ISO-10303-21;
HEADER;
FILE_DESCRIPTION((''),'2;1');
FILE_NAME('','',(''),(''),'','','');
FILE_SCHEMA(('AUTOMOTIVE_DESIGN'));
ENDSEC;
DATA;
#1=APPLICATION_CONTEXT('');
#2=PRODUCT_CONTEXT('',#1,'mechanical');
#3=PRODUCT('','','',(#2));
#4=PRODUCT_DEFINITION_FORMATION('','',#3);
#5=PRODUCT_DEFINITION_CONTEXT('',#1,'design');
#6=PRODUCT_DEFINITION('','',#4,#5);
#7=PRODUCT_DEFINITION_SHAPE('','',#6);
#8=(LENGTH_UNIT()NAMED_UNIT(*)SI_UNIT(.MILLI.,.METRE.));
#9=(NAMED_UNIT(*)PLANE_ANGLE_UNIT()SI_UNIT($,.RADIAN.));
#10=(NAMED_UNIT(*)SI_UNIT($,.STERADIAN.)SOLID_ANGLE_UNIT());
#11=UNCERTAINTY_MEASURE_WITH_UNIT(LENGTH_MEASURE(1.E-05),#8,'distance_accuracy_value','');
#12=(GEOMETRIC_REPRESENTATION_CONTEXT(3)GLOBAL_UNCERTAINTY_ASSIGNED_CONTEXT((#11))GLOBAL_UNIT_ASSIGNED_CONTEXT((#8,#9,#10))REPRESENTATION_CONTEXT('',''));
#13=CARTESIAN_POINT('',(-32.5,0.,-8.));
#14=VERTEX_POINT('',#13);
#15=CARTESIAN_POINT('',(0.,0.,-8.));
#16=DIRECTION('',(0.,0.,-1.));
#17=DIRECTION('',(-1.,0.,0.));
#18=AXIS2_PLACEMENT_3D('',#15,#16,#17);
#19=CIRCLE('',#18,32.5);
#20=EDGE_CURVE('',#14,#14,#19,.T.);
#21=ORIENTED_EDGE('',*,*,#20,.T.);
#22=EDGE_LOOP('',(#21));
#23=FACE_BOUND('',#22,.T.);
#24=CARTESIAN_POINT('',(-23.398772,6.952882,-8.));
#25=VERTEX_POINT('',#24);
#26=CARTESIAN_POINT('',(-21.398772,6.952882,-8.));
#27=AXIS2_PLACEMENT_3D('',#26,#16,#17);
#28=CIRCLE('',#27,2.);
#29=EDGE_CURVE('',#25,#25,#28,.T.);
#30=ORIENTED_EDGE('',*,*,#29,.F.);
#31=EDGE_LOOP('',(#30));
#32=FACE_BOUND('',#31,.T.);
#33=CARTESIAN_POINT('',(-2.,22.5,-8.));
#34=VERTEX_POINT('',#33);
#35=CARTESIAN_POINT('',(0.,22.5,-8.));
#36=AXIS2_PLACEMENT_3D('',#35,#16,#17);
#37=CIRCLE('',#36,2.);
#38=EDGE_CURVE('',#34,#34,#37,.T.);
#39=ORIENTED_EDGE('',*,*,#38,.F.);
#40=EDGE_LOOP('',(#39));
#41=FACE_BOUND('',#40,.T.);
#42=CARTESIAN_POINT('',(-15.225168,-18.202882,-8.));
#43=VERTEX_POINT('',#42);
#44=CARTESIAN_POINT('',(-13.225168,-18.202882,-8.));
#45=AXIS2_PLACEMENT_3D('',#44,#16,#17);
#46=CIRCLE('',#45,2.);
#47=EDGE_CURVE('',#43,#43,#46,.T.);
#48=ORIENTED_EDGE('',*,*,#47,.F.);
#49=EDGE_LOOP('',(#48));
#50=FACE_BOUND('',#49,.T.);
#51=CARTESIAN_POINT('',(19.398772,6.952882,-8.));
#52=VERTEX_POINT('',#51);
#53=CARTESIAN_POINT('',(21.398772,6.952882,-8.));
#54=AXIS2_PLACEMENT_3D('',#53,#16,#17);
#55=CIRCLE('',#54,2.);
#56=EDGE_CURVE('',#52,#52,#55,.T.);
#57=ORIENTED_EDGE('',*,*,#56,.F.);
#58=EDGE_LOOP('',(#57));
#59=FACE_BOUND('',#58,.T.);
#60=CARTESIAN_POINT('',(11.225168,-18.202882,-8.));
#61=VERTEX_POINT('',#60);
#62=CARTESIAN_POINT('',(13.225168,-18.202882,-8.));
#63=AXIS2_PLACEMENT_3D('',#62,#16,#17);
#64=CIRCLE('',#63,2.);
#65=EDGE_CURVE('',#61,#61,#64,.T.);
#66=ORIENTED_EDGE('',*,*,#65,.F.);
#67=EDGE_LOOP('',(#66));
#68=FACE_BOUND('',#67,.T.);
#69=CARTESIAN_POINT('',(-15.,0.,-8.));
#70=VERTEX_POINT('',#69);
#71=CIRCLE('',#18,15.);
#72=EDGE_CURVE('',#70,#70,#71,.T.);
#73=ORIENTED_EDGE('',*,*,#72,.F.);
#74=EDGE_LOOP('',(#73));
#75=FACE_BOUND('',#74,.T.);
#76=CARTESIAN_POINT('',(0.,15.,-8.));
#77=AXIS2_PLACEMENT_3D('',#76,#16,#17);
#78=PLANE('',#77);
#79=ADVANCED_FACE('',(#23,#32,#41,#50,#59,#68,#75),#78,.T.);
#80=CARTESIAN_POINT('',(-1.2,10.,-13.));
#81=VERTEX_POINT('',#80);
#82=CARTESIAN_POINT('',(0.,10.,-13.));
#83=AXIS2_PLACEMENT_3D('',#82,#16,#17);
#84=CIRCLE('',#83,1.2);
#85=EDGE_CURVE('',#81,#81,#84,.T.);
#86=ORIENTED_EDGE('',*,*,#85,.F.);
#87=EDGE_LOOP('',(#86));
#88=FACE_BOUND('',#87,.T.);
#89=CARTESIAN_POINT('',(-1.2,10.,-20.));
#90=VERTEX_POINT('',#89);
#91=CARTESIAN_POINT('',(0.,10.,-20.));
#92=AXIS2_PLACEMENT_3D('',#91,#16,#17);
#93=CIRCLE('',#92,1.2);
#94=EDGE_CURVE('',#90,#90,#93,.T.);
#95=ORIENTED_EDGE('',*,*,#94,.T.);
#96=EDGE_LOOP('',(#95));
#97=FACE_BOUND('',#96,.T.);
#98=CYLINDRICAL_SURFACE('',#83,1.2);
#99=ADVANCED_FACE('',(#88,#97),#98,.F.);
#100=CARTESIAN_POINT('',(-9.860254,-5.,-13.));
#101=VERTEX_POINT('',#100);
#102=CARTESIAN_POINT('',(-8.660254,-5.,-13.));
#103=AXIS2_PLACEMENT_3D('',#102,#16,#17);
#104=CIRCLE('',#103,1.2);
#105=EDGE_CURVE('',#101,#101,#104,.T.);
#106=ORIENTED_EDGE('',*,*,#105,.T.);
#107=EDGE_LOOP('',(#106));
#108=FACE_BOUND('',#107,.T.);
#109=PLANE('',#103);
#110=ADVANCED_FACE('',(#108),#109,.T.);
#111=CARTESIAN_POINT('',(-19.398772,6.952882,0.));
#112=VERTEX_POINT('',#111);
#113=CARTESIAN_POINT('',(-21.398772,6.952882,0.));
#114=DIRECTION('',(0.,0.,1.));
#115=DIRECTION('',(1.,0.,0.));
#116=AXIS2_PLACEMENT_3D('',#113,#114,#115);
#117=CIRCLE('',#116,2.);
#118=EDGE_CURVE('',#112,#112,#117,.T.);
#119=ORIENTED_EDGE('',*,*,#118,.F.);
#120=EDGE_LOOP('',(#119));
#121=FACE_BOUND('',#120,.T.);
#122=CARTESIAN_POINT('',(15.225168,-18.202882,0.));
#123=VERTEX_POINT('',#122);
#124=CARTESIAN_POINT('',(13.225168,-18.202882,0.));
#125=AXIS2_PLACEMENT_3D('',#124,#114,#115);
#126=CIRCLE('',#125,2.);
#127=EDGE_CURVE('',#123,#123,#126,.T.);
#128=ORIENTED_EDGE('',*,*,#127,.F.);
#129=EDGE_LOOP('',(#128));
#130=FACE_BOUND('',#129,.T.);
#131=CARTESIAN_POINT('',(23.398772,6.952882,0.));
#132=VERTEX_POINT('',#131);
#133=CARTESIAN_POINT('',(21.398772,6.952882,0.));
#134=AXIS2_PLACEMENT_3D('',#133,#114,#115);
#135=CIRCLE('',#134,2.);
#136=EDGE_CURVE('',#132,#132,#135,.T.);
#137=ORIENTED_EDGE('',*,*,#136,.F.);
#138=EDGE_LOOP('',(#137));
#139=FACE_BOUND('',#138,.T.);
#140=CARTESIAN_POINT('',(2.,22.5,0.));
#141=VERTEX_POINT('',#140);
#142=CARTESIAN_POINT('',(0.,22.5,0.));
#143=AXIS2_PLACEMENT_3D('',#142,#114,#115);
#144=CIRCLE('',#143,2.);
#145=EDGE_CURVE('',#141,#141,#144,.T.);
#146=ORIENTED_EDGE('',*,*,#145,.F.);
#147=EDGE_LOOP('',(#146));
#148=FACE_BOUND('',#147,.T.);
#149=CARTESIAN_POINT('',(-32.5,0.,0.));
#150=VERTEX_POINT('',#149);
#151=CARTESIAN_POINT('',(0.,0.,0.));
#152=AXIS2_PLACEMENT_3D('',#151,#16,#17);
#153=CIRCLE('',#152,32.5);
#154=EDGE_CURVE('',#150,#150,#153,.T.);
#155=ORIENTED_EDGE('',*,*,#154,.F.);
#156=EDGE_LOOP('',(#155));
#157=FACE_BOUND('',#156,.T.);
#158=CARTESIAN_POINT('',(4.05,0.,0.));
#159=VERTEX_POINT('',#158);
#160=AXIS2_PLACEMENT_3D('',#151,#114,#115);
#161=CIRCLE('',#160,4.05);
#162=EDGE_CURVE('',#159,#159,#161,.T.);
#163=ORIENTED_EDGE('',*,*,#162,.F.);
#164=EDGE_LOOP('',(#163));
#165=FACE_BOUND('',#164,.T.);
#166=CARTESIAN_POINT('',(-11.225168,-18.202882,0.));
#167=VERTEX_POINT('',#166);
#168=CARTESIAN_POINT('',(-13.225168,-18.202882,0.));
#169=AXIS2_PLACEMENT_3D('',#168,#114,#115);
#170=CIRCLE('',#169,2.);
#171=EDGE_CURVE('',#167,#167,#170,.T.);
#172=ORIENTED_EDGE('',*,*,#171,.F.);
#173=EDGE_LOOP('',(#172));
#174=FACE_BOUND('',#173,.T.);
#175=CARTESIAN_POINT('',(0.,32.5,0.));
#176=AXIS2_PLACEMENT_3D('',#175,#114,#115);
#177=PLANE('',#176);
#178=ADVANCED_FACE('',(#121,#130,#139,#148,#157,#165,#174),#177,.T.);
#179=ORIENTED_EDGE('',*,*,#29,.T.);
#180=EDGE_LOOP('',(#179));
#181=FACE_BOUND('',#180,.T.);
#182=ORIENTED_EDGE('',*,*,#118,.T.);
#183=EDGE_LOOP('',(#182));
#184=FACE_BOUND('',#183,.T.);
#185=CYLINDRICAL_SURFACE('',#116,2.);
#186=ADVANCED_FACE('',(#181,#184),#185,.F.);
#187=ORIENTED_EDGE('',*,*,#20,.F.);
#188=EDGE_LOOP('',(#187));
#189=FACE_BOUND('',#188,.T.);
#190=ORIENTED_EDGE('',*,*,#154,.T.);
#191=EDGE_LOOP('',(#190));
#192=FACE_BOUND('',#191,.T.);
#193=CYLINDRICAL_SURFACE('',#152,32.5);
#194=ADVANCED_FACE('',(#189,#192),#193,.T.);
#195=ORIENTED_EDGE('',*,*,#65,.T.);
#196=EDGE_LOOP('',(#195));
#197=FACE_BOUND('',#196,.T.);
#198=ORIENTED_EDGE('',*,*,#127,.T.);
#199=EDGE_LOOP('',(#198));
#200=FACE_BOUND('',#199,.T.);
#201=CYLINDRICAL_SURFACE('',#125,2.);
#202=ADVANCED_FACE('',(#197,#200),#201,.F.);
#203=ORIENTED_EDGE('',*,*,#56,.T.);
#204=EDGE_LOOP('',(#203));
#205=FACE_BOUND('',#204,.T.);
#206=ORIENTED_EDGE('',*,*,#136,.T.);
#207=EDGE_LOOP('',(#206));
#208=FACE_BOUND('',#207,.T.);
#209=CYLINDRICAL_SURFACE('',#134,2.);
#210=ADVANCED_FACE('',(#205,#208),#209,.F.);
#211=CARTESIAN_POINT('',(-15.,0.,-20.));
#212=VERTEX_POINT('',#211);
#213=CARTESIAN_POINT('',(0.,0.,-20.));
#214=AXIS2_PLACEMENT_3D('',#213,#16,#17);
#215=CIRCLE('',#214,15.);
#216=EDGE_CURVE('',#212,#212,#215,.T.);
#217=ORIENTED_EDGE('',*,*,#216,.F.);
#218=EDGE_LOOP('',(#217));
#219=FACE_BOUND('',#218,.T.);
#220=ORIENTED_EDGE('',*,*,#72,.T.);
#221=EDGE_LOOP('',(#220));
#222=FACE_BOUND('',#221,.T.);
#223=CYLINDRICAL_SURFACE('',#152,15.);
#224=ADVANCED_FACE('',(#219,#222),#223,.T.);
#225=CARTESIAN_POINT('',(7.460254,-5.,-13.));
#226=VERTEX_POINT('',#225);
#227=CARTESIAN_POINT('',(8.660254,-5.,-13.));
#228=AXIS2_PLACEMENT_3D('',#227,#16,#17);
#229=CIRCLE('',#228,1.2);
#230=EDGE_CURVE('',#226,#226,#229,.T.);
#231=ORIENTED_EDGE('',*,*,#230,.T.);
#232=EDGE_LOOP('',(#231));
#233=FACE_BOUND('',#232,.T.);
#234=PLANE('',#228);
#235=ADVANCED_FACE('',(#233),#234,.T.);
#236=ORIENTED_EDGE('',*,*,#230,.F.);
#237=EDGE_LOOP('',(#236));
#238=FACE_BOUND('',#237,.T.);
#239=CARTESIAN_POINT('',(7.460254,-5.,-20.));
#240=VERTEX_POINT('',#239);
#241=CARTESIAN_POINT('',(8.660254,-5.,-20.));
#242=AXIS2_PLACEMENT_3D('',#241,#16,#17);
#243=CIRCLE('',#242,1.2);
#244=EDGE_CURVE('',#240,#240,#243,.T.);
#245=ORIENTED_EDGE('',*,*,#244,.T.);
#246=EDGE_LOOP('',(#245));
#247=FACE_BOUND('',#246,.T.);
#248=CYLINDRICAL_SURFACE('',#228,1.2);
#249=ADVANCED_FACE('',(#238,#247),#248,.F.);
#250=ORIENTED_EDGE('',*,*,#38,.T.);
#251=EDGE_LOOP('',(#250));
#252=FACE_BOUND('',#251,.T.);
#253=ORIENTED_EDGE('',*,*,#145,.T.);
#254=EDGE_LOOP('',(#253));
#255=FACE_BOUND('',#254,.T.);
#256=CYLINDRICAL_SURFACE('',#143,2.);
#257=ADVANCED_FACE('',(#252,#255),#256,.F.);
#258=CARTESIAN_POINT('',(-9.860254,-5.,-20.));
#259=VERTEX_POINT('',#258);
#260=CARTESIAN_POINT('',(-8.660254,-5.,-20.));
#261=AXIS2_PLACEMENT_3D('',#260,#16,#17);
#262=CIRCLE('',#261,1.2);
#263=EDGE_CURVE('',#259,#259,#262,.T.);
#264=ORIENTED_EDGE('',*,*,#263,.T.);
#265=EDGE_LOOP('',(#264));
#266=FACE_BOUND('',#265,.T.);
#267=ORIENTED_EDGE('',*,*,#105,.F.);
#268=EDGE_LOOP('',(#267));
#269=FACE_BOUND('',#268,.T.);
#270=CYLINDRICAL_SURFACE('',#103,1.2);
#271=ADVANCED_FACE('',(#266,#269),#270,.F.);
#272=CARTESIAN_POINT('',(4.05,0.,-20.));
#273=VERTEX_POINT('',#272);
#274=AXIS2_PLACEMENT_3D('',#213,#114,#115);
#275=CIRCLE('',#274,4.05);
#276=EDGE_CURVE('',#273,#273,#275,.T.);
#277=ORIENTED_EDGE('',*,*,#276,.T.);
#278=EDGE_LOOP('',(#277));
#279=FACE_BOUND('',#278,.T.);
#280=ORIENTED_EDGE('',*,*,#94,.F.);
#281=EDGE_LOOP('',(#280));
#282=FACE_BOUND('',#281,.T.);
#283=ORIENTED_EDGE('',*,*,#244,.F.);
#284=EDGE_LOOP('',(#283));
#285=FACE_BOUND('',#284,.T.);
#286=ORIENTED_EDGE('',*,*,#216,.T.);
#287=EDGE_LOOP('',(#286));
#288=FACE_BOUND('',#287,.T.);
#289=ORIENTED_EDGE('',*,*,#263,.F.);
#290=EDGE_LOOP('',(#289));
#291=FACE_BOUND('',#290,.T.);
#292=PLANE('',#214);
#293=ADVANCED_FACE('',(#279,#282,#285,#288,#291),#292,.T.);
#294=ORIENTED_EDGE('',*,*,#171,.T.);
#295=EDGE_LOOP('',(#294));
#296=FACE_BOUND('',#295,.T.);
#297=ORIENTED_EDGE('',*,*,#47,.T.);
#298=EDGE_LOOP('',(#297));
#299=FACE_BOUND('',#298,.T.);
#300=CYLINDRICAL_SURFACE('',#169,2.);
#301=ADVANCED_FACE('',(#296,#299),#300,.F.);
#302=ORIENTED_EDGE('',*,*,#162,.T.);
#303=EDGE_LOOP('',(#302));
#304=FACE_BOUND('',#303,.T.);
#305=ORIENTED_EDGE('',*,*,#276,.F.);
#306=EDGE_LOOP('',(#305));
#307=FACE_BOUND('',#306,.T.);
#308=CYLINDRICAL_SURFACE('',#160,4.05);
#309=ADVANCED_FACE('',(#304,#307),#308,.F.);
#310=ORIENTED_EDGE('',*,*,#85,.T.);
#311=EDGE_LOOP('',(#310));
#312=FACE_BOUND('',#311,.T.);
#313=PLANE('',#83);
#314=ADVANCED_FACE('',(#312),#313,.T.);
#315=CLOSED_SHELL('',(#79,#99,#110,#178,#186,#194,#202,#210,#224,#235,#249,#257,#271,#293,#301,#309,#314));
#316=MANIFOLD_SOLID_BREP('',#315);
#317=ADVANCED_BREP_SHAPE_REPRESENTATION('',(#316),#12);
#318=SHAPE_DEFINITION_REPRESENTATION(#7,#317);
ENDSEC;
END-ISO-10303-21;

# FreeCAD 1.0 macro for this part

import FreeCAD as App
import Part
import Sketcher
Q = App.Units.Quantity

doc = App.newDocument("Part")
params = doc.addObject("Spreadsheet::Sheet", "Params")
for row, (alias, value) in enumerate([
    ("sketch1_width", "15 mm"),
    ("sketch1_height", "20 mm"),
    ("sketch1_height2", "12 mm"),
    ("sketch1_width2", "17.5 mm"),
    ("revolution_angle", "360 deg"),
    ("sketch2_diameter", "4 mm"),
    ("hole_diameter", "4 mm"),
    ("sketch3_diameter", "8.1 mm"),
    ("hole2_diameter", "8.1 mm"),
    ("sketch4_diameter", "2.4 mm"),
    ("pocket1_length", "7 mm"),
], start=1):
    params.set(f"A{row}", alias)
    params.set(f"B{row}", "=" + value)
    params.setAlias(f"B{row}", alias)

body = doc.addObject("PartDesign::Body", "Body")

# Sketch on YZ plane
sketch1 = body.newObject("Sketcher::SketchObject", "Sketch")
sketch1.AttachmentSupport = (doc.getObject("YZ_Plane"), [""])
sketch1.MapMode = "FlatFace"
sketch1.addGeometry([
    Part.LineSegment(App.Vector(0, 0, 0), App.Vector(0, -20, 0)),  # 0
    Part.LineSegment(App.Vector(0, -20, 0), App.Vector(15, -20, 0)),  # 1
    Part.LineSegment(App.Vector(15, -20, 0), App.Vector(15, -8, 0)),  # 2
    Part.LineSegment(App.Vector(15, -8, 0), App.Vector(32.5, -8, 0)),  # 3
    Part.LineSegment(App.Vector(32.5, -8, 0), App.Vector(32.5, 0, 0)),  # 4
    Part.LineSegment(App.Vector(32.5, 0, 0), App.Vector(0, 0, 0)),  # 5
], False)
sketch1.addConstraint([
    Sketcher.Constraint("Coincident", 0, 2, 1, 1),
    Sketcher.Constraint("Coincident", 1, 2, 2, 1),
    Sketcher.Constraint("Coincident", 2, 2, 3, 1),
    Sketcher.Constraint("Coincident", 3, 2, 4, 1),
    Sketcher.Constraint("Coincident", 4, 2, 5, 1),
    Sketcher.Constraint("Coincident", 5, 2, 0, 1),
    Sketcher.Constraint("Vertical", 0),
    Sketcher.Constraint("Horizontal", 1),
    Sketcher.Constraint("Vertical", 2),
    Sketcher.Constraint("Horizontal", 3),
    Sketcher.Constraint("Vertical", 4),
    Sketcher.Constraint("Horizontal", 5),
    Sketcher.Constraint("Coincident", 5, 2, -1, 1),
    Sketcher.Constraint("DistanceX", 1, 1, 1, 2, Q("15 mm")),
    Sketcher.Constraint("DistanceY", 0, 2, 0, 1, Q("20 mm")),
    Sketcher.Constraint("DistanceY", 2, 1, 2, 2, Q("12 mm")),
    Sketcher.Constraint("DistanceX", 3, 1, 3, 2, Q("17.5 mm")),
])
sketch1.setExpression("Constraints[13]", "Params.sketch1_width")
sketch1.setExpression("Constraints[14]", "Params.sketch1_height")
sketch1.setExpression("Constraints[15]", "Params.sketch1_height2")
sketch1.setExpression("Constraints[16]", "Params.sketch1_width2")
revolution = body.newObject("PartDesign::Revolution", "Revolution")
revolution.Profile = sketch1
revolution.ReferenceAxis = (sketch1, ["V_Axis"])
revolution.setExpression("Angle", "Params.revolution_angle")

# Sketch on XY plane
sketch2 = body.newObject("Sketcher::SketchObject", "Sketch001")
sketch2.AttachmentSupport = (doc.getObject("XY_Plane"), [""])
sketch2.MapMode = "FlatFace"
sketch2.addGeometry(Part.Circle(App.Vector(0, 22.5, 0), App.Vector(0, 0, 1), 2), False)
sketch2.addConstraint([
    Sketcher.Constraint("PointOnObject", 0, 3, -2),
    Sketcher.Constraint("Diameter", 0, Q("4 mm")),
    Sketcher.Constraint("DistanceY", -1, 1, 0, 3, Q("22.5 mm")),
])
sketch2.setExpression("Constraints[1]", "Params.sketch2_diameter")
doc.recompute()
hole = body.newObject("PartDesign::Hole", "Hole")
hole.Profile = sketch2
hole.ThreadType = "None"
hole.setExpression("Diameter", "Params.hole_diameter")
hole.DepthType = "ThroughAll"

# Sketch on XY plane
sketch3 = body.newObject("Sketcher::SketchObject", "Sketch002")
sketch3.AttachmentSupport = (doc.getObject("XY_Plane"), [""])
sketch3.MapMode = "FlatFace"
sketch3.addGeometry(Part.Circle(App.Vector(0, 0, 0), App.Vector(0, 0, 1), 4.05), False)
sketch3.addConstraint([
    Sketcher.Constraint("Coincident", 0, 3, -1, 1),
    Sketcher.Constraint("Diameter", 0, Q("8.1 mm")),
])
sketch3.setExpression("Constraints[1]", "Params.sketch3_diameter")
doc.recompute()
hole2 = body.newObject("PartDesign::Hole", "Hole001")
hole2.Profile = sketch3
hole2.ThreadType = "None"
hole2.setExpression("Diameter", "Params.hole2_diameter")
hole2.DepthType = "ThroughAll"

# Sketch on XY plane
sketch4 = body.newObject("Sketcher::SketchObject", "Sketch003")
sketch4.AttachmentSupport = (doc.getObject("XY_Plane"), [""])
sketch4.MapMode = "FlatFace"
sketch4.AttachmentOffset = App.Placement(App.Vector(0, 0, -20), App.Rotation())
sketch4.addGeometry([
    Part.Circle(App.Vector(0, 10, 0), App.Vector(0, 0, 1), 1.2),
    Part.Circle(App.Vector(-8.660254, -5, 0), App.Vector(0, 0, 1), 1.2),
    Part.Circle(App.Vector(8.660254, -5, 0), App.Vector(0, 0, 1), 1.2),
], False)
sketch4.addConstraint([
    Sketcher.Constraint("Equal", 0, 1),
    Sketcher.Constraint("Equal", 1, 2),
    Sketcher.Constraint("Symmetric", 1, 3, 2, 3, -2),
    Sketcher.Constraint("PointOnObject", 0, 3, -2),
    Sketcher.Constraint("Diameter", 0, Q("2.4 mm")),
    Sketcher.Constraint("DistanceY", -1, 1, 0, 3, Q("10 mm")),
    Sketcher.Constraint("DistanceY", 1, 3, -1, 1, Q("5 mm")),
    Sketcher.Constraint("DistanceX", 1, 3, 2, 3, Q("17.320508 mm")),
])
sketch4.setExpression("Constraints[4]", "Params.sketch4_diameter")
pocket1 = body.newObject("PartDesign::Pocket", "Pocket")
pocket1.Profile = sketch4
pocket1.setExpression("Length", "Params.pocket1_length")
pocket1.Reversed = True
doc.recompute()

polarpattern = body.newObject("PartDesign::PolarPattern", "PolarPattern")
polarpattern.Originals = [hole]
polarpattern.Axis = (doc.getObject("Z_Axis"), [""])
polarpattern.Angle = 360
polarpattern.Occurrences = 5
body.Tip = polarpattern

doc.recompute()
